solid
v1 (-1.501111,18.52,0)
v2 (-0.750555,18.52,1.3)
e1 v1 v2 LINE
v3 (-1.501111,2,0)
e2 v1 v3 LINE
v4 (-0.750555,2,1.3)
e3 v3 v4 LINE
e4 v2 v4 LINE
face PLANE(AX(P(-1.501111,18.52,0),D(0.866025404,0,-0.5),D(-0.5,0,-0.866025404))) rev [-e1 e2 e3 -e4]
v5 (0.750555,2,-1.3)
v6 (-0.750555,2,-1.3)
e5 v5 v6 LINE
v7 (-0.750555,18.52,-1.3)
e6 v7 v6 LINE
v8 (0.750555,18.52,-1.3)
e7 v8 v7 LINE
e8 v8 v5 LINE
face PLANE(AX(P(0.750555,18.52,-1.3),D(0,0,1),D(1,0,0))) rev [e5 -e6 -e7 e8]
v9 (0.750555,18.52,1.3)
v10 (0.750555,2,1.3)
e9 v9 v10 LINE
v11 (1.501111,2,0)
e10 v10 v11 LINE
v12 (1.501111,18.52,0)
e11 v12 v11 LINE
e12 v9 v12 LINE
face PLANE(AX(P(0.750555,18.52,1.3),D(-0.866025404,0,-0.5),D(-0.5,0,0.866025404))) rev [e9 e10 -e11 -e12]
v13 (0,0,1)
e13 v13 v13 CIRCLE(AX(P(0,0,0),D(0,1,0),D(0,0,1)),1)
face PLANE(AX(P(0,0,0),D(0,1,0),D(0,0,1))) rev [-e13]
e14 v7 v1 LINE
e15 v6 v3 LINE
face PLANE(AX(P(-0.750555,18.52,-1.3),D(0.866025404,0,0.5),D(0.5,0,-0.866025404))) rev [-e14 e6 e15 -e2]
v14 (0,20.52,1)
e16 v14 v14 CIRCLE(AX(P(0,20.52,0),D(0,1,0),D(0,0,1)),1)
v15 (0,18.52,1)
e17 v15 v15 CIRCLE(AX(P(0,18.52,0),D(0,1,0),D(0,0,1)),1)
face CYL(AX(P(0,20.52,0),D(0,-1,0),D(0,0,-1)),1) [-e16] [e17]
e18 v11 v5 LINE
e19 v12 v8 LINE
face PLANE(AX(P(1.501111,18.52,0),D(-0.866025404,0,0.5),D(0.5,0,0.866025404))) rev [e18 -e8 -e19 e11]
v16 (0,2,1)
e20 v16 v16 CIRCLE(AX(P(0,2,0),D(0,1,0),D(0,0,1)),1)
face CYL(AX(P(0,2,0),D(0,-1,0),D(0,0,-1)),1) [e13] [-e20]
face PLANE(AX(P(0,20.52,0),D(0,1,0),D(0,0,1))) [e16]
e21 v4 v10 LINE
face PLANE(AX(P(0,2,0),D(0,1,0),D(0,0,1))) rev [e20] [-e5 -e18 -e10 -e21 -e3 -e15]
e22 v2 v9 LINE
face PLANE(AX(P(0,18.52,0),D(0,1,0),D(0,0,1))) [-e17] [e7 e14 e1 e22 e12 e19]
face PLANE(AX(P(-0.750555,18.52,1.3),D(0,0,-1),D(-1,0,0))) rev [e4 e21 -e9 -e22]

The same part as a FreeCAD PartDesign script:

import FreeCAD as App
import Part
import Sketcher
Q = App.Units.Quantity

doc = App.newDocument("Part")
body = doc.addObject("PartDesign::Body", "Body")

# Sketch on XZ plane
sketch1 = doc.addObject("Sketcher::SketchObject", "Sketch")
body.addObject(sketch1)
sketch1.AttachmentSupport = (doc.XZ_Plane, [""])
sketch1.MapMode = "FlatFace"
sketch1.addGeometry(Part.Circle(App.Vector(0, 0, 0), App.Vector(0, 0, 1), 1), False)
sketch1.addConstraint([
    Sketcher.Constraint("Coincident", 0, 3, -1, 1),
    Sketcher.Constraint("Diameter", 0, 2.0),
])
pad1 = doc.addObject("PartDesign::Pad", "Pad")
body.addObject(pad1)
pad1.Profile = sketch1
pad1.Length = 2
pad1.Reversed = True

# Sketch on XZ plane
sketch2 = doc.addObject("Sketcher::SketchObject", "Sketch001")
body.addObject(sketch2)
sketch2.AttachmentSupport = (doc.XZ_Plane, [""])
sketch2.MapMode = "FlatFace"
sketch2.AttachmentOffset = App.Placement(App.Vector(0, 0, -2), App.Rotation())
sketch2.addGeometry([
    Part.LineSegment(App.Vector(1.5, 0, 0), App.Vector(0.8, -1.3, 0)),  # 0
    Part.LineSegment(App.Vector(0.8, -1.3, 0), App.Vector(-0.8, -1.3, 0)),  # 1
    Part.LineSegment(App.Vector(-0.8, -1.3, 0), App.Vector(-1.5, 0, 0)),  # 2
    Part.LineSegment(App.Vector(-1.5, 0, 0), App.Vector(-0.8, 1.3, 0)),  # 3
    Part.LineSegment(App.Vector(-0.8, 1.3, 0), App.Vector(0.8, 1.3, 0)),  # 4
    Part.LineSegment(App.Vector(0.8, 1.3, 0), App.Vector(1.5, 0, 0)),  # 5
], False)
sketch2.addConstraint([
    Sketcher.Constraint("Coincident", 0, 2, 1, 1),
    Sketcher.Constraint("Coincident", 1, 2, 2, 1),
    Sketcher.Constraint("Coincident", 2, 2, 3, 1),
    Sketcher.Constraint("Coincident", 3, 2, 4, 1),
    Sketcher.Constraint("Coincident", 4, 2, 5, 1),
    Sketcher.Constraint("Coincident", 5, 2, 0, 1),
    Sketcher.Constraint("Horizontal", 1),
    Sketcher.Constraint("Horizontal", 4),
    Sketcher.Constraint("Symmetric", 0, 2, 3, 2, -1, 1),
    Sketcher.Constraint("Symmetric", 2, 2, 5, 2, -1, 1),
    Sketcher.Constraint("PointOnObject", 2, 2, -1),
    Sketcher.Constraint("Parallel", 2, 5),
    Sketcher.Constraint("Vertical", 1, 2, 3, 2),
    Sketcher.Constraint("Angle", 0, Q("-120 deg")),
    Sketcher.Constraint("DistanceY", 0, 2, -1, 1, 1.3),
    Sketcher.Constraint("DistanceX", 1, 2, 1, 1, 1.501111),
])
pad2 = doc.addObject("PartDesign::Pad", "Pad001")
body.addObject(pad2)
pad2.Profile = sketch2
pad2.Length = 16.52
pad2.Reversed = True

# Sketch on XZ plane
sketch3 = doc.addObject("Sketcher::SketchObject", "Sketch002")
body.addObject(sketch3)
sketch3.AttachmentSupport = (doc.XZ_Plane, [""])
sketch3.MapMode = "FlatFace"
sketch3.AttachmentOffset = App.Placement(App.Vector(0, 0, -18.52), App.Rotation())
sketch3.addGeometry(Part.Circle(App.Vector(0, 0, 0), App.Vector(0, 0, 1), 1), False)
sketch3.addConstraint([
    Sketcher.Constraint("Coincident", 0, 3, -1, 1),
    Sketcher.Constraint("Diameter", 0, 2.0),
])
pad3 = doc.addObject("PartDesign::Pad", "Pad002")
body.addObject(pad3)
pad3.Profile = sketch3
pad3.Length = 2
pad3.Reversed = True

doc.recompute()
